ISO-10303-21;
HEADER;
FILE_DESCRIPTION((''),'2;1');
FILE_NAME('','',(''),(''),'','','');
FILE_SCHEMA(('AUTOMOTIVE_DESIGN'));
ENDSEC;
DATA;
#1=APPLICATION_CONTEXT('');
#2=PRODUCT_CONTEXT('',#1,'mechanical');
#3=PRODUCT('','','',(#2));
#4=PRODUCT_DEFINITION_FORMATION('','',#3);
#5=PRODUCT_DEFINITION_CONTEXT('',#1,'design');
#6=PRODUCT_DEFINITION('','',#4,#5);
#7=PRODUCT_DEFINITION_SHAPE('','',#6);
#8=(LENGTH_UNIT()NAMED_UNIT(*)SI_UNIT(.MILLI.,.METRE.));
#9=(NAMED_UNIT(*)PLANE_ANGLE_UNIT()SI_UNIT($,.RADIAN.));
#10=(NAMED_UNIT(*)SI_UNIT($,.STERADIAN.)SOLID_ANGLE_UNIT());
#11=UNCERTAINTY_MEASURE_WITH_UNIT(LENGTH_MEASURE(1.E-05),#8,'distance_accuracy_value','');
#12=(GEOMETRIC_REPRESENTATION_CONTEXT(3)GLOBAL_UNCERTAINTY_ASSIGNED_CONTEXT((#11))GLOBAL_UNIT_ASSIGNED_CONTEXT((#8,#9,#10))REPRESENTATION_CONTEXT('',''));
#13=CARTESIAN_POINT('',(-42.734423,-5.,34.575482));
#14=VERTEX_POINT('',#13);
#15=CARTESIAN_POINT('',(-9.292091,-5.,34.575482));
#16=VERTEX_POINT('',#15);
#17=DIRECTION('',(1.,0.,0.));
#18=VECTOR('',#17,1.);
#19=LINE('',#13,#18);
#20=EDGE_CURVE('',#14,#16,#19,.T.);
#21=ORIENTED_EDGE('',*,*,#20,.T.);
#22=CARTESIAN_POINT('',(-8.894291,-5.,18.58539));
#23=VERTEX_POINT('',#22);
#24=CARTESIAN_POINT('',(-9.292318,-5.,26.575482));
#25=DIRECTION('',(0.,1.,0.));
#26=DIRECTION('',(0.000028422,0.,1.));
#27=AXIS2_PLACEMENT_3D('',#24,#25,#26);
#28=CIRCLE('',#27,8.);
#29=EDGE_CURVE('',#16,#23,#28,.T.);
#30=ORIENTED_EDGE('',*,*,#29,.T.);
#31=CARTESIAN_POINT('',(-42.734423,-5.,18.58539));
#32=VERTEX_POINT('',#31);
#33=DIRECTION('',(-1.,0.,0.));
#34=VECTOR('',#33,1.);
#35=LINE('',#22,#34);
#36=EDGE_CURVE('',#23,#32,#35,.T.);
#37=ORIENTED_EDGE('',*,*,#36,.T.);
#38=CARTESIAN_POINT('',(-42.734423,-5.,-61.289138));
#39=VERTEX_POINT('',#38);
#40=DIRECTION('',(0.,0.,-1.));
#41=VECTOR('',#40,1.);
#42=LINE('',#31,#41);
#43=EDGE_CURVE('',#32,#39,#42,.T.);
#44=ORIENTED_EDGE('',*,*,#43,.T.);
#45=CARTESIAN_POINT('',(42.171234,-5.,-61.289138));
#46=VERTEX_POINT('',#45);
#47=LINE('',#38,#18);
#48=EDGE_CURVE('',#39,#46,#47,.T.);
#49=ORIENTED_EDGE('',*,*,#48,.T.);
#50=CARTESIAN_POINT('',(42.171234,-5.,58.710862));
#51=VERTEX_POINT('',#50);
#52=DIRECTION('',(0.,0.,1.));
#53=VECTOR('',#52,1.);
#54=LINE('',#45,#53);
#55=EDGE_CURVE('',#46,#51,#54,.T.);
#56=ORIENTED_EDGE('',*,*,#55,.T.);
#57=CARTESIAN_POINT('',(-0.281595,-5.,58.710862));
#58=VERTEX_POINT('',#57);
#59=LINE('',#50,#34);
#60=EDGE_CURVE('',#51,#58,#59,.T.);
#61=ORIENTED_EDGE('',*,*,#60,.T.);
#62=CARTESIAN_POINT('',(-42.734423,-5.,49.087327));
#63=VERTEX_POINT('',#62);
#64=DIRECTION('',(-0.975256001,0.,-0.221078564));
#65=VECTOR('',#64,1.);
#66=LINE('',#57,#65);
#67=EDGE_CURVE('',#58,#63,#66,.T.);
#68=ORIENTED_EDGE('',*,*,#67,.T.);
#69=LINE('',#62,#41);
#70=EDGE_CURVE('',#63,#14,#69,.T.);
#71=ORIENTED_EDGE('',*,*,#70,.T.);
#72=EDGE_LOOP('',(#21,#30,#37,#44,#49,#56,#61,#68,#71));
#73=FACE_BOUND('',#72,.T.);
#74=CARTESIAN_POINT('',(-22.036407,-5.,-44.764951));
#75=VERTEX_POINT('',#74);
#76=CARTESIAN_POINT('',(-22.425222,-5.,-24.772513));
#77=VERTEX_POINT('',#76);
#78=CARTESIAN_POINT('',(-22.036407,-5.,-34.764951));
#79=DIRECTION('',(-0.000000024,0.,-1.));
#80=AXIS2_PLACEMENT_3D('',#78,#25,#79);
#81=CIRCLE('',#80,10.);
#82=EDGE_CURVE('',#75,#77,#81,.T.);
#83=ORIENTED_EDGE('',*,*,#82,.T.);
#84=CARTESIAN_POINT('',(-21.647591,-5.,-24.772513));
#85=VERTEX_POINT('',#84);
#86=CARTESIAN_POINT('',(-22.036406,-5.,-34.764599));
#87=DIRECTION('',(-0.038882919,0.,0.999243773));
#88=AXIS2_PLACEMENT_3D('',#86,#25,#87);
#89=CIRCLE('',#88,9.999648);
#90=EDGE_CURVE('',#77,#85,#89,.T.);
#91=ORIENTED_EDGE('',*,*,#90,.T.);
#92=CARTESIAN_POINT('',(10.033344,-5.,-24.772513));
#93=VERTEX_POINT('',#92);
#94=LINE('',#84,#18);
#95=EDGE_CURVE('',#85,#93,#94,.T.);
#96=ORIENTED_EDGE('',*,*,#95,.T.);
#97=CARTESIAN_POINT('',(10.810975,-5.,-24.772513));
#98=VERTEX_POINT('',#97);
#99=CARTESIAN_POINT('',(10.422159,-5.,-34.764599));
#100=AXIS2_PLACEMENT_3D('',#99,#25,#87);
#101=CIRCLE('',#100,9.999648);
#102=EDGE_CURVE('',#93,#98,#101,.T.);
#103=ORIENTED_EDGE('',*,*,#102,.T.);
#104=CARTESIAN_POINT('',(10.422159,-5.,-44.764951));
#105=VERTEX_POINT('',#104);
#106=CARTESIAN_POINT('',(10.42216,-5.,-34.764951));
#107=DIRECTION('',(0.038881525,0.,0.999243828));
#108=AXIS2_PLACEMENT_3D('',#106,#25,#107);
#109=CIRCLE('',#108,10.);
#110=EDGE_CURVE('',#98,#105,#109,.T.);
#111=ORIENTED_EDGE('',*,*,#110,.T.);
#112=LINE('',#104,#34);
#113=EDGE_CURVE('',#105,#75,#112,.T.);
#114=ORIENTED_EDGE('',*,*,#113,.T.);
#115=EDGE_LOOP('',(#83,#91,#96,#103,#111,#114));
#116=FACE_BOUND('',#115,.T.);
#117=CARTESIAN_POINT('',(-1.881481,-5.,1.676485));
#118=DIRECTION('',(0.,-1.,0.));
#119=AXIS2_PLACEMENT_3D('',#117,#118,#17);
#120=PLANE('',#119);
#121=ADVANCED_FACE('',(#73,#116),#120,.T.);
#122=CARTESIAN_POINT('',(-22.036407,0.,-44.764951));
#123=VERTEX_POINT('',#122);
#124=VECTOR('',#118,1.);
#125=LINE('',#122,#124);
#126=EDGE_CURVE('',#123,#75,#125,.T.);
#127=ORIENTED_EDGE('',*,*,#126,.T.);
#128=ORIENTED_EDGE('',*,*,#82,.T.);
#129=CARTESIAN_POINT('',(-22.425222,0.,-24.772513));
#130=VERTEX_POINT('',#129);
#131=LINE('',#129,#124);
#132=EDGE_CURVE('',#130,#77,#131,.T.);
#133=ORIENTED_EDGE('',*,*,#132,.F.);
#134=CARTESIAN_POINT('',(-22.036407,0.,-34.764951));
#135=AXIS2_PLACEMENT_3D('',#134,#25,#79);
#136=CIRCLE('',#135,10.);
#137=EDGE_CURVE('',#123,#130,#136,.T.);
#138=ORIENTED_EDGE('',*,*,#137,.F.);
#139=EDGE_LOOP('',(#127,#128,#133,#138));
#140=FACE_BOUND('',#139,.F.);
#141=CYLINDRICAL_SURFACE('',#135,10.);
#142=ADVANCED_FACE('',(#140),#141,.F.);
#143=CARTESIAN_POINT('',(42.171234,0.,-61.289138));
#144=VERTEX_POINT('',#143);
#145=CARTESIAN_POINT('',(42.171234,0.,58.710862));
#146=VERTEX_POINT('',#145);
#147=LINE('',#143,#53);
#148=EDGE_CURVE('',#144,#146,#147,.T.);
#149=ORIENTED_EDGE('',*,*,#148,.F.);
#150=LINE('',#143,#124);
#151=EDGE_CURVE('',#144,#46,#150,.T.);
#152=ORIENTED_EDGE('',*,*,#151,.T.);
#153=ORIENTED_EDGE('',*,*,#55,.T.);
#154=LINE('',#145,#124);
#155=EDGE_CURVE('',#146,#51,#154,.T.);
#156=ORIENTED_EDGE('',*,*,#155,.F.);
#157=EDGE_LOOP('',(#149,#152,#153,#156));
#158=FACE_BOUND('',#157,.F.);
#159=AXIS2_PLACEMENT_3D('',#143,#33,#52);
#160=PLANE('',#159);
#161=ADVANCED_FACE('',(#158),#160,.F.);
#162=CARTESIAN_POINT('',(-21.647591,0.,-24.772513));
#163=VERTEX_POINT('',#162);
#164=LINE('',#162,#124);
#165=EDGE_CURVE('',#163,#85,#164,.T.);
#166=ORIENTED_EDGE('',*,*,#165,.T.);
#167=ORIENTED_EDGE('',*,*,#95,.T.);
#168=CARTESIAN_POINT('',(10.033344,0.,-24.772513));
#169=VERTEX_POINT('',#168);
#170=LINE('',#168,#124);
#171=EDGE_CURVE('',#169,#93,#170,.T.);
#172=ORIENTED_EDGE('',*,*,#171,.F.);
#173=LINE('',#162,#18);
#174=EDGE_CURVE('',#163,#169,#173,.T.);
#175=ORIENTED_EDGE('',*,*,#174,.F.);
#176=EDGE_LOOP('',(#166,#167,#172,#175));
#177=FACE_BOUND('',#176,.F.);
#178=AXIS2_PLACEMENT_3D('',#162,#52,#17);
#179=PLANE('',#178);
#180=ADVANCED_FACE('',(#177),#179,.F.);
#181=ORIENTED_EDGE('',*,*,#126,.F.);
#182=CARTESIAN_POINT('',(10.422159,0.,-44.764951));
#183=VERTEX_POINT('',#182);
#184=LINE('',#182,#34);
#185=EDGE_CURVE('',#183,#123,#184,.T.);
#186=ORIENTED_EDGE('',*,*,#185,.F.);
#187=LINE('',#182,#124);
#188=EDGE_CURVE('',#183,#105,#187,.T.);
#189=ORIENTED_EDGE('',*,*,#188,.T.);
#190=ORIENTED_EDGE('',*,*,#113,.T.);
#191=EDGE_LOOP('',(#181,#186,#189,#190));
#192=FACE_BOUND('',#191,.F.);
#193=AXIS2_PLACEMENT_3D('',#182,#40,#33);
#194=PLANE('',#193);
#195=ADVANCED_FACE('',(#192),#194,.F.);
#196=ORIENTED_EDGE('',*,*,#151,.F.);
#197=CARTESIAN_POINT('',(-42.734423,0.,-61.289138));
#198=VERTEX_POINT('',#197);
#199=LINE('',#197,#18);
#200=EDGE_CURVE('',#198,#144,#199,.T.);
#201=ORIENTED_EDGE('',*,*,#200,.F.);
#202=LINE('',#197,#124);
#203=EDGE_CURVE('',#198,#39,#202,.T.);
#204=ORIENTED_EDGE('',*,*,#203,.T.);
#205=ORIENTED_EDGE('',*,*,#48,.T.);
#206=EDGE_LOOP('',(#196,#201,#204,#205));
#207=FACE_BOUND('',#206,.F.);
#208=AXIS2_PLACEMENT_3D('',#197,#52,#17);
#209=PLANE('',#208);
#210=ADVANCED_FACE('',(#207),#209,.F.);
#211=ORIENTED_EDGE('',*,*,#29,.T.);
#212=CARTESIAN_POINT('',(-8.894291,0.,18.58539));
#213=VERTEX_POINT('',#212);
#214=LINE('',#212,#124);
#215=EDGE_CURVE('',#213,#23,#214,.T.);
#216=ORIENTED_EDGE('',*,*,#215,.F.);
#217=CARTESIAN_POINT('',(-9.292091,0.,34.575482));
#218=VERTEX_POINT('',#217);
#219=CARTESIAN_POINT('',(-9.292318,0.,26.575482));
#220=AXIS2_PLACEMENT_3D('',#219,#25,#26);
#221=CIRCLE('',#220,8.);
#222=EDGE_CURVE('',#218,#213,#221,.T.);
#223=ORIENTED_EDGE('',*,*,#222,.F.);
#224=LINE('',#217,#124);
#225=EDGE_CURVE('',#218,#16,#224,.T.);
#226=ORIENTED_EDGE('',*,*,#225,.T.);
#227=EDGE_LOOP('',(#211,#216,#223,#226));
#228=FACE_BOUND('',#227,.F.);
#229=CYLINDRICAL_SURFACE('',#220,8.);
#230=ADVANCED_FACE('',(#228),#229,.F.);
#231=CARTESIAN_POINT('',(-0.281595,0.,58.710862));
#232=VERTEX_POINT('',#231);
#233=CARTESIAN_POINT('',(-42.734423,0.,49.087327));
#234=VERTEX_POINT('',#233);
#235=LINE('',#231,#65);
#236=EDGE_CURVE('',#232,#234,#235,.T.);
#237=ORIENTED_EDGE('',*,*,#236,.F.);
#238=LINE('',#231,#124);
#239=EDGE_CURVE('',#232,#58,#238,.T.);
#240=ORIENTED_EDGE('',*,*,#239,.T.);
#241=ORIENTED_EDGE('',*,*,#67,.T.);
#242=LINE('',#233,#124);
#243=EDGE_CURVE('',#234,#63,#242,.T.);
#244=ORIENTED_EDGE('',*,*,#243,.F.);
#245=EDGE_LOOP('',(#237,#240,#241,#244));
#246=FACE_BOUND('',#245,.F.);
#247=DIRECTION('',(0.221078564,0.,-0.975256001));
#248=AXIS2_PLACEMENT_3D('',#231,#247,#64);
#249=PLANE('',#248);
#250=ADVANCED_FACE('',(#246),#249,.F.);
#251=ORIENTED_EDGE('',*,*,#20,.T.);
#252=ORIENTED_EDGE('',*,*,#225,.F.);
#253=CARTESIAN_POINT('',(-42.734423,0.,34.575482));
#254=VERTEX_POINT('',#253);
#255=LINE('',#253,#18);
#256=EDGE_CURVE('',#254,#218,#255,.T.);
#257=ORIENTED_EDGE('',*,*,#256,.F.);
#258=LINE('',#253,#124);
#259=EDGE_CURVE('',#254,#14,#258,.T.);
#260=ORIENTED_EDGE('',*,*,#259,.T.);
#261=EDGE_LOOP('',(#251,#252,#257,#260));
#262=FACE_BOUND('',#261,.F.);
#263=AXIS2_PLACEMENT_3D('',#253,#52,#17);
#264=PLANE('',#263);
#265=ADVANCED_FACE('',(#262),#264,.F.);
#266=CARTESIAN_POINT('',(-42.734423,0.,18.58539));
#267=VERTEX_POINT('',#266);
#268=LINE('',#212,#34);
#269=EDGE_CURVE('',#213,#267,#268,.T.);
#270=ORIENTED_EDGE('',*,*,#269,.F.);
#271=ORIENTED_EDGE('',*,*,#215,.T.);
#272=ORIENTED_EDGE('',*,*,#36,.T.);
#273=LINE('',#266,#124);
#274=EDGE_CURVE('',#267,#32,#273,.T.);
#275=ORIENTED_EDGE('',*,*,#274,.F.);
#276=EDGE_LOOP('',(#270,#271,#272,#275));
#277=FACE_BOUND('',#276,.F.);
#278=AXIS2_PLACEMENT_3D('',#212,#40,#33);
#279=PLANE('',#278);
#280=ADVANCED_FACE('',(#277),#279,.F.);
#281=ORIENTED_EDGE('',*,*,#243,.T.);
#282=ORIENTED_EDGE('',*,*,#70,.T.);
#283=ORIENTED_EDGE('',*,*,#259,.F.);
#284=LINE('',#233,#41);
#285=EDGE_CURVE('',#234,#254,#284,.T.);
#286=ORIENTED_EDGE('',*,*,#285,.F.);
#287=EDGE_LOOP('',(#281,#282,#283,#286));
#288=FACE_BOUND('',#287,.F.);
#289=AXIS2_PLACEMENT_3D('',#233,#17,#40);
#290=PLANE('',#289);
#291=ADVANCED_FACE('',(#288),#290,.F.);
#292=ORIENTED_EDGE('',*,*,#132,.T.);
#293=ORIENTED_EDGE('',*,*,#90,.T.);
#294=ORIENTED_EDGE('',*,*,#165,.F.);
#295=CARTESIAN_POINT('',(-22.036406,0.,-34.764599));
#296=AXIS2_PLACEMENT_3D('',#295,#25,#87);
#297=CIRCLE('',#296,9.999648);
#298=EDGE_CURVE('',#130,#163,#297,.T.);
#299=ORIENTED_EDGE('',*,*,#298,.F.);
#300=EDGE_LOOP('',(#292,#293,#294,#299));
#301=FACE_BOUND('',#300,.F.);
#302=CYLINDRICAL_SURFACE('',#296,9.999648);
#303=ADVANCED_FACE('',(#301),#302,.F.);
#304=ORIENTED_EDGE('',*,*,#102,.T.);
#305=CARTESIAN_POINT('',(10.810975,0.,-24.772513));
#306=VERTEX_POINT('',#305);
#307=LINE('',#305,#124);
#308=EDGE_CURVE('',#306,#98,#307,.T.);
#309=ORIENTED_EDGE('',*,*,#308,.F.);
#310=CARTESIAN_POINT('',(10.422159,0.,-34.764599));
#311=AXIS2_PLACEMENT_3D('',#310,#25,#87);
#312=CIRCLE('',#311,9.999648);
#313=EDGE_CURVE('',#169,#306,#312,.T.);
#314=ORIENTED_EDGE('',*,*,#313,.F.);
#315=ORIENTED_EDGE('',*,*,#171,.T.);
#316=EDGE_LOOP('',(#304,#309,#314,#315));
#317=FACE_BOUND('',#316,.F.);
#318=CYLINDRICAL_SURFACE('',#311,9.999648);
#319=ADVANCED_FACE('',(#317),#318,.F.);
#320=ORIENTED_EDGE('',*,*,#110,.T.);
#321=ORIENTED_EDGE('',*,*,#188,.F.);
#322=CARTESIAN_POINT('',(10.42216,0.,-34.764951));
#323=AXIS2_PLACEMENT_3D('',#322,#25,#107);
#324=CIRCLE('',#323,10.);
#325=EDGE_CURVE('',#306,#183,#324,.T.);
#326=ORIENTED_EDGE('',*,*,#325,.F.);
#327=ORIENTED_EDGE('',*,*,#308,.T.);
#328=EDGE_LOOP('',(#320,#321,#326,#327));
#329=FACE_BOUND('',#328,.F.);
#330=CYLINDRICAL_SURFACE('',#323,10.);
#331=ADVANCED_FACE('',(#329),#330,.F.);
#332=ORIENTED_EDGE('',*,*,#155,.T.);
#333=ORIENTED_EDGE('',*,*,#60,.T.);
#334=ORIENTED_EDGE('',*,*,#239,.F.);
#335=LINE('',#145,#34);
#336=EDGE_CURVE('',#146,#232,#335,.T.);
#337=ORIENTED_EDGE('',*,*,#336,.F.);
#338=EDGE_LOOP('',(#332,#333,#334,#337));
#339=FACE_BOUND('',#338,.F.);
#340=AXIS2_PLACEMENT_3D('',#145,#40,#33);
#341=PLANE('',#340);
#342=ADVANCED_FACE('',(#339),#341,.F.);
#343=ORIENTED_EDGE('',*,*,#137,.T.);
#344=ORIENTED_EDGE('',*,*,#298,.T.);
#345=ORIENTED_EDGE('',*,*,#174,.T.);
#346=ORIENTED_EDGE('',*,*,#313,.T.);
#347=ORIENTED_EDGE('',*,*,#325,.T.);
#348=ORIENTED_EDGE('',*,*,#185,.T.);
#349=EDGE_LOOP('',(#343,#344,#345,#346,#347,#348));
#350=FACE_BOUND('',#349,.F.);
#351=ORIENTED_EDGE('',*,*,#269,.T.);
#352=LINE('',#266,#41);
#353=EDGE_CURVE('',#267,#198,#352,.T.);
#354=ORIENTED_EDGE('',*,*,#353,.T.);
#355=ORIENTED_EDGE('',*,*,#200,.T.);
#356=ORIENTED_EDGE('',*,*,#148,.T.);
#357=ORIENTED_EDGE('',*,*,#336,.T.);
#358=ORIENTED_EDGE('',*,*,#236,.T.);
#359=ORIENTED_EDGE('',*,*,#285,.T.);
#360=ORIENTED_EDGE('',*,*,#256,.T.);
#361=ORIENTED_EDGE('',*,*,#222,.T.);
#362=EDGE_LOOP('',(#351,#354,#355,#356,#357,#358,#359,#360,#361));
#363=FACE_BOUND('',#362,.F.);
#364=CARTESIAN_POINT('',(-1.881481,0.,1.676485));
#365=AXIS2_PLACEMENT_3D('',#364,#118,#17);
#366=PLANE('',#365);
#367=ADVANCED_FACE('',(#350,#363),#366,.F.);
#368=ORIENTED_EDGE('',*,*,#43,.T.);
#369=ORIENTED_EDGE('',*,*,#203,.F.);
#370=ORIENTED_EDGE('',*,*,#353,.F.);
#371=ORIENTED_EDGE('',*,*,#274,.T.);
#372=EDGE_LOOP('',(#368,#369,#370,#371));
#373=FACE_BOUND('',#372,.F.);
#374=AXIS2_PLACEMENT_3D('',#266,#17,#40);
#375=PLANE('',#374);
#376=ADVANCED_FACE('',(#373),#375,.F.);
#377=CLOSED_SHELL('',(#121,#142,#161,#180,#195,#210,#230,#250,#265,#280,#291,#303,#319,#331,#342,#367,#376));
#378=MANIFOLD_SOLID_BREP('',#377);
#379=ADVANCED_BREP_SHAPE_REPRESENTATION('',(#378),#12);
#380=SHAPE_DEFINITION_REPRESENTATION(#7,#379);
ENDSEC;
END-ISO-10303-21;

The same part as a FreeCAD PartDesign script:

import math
import FreeCAD as App
import Part
import Sketcher

doc = App.newDocument("Part")
body = doc.addObject("PartDesign::Body", "Body")

# Sketch on XZ plane
sketch1 = doc.addObject("Sketcher::SketchObject", "Sketch")
body.addObject(sketch1)
sketch1.AttachmentSupport = (doc.XZ_Plane, [""])
sketch1.MapMode = "FlatFace"
sketch1.addGeometry([
    Part.LineSegment(App.Vector(42.171234, 58.710862, 0), App.Vector(-0.281595, 58.710862, 0)),  # 0
    Part.LineSegment(App.Vector(-0.281595, 58.710862, 0), App.Vector(-42.734423, 49.087327, 0)),  # 1
    Part.LineSegment(App.Vector(-42.734423, 49.087327, 0), App.Vector(-42.734423, 34.575482, 0)),  # 2
    Part.LineSegment(App.Vector(-42.734423, 34.575482, 0), App.Vector(-9.292091, 34.575482, 0)),  # 3
    Part.ArcOfCircle(Part.Circle(App.Vector(-9.292318, 26.575482, 0), App.Vector(0, 0, 1), 8), math.radians(-87.148161), math.radians(89.998372)),  # 4
    Part.LineSegment(App.Vector(-8.894291, 18.58539, 0), App.Vector(-42.734423, 18.58539, 0)),  # 5
    Part.LineSegment(App.Vector(-42.734423, 18.58539, 0), App.Vector(-42.734423, -61.289138, 0)),  # 6
    Part.LineSegment(App.Vector(-42.734423, -61.289138, 0), App.Vector(42.171234, -61.289138, 0)),  # 7
    Part.LineSegment(App.Vector(42.171234, -61.289138, 0), App.Vector(42.171234, 58.710862, 0)),  # 8
    Part.ArcOfCircle(Part.Circle(App.Vector(-22.036407, -34.764951, 0), App.Vector(0, 0, 1), 10), math.radians(92.228309), math.radians(269.999999)),  # 9
    Part.ArcOfCircle(Part.Circle(App.Vector(-22.036406, -34.764599, 0), App.Vector(0, 0, 1), 9.999648), math.radians(87.771611), math.radians(92.228389)),  # 10
    Part.LineSegment(App.Vector(-21.647591, -24.772513, 0), App.Vector(10.033344, -24.772513, 0)),  # 11
    Part.ArcOfCircle(Part.Circle(App.Vector(10.422159, -34.764599, 0), App.Vector(0, 0, 1), 9.999648), math.radians(87.771611), math.radians(92.228389)),  # 12
    Part.ArcOfCircle(Part.Circle(App.Vector(10.42216, -34.764951, 0), App.Vector(0, 0, 1), 10), math.radians(-90.000004), math.radians(87.771691)),  # 13
    Part.LineSegment(App.Vector(10.422159, -44.764951, 0), App.Vector(-22.036407, -44.764951, 0)),  # 14
], False)
sketch1.addConstraint([
    Sketcher.Constraint("Coincident", 0, 2, 1, 1),
    Sketcher.Constraint("Coincident", 1, 2, 2, 1),
    Sketcher.Constraint("Coincident", 2, 2, 3, 1),
    Sketcher.Constraint("Coincident", 3, 2, 4, 2),
    Sketcher.Constraint("Coincident", 4, 1, 5, 1),
    Sketcher.Constraint("Coincident", 5, 2, 6, 1),
    Sketcher.Constraint("Coincident", 6, 2, 7, 1),
    Sketcher.Constraint("Coincident", 7, 2, 8, 1),
    Sketcher.Constraint("Coincident", 8, 2, 0, 1),
    Sketcher.Constraint("Coincident", 9, 1, 10, 2),
    Sketcher.Constraint("Coincident", 10, 1, 11, 1),
    Sketcher.Constraint("Coincident", 11, 2, 12, 2),
    Sketcher.Constraint("Coincident", 12, 1, 13, 2),
    Sketcher.Constraint("Coincident", 13, 1, 14, 1),
    Sketcher.Constraint("Coincident", 14, 2, 9, 2),
    Sketcher.Constraint("Horizontal", 0),
    Sketcher.Constraint("Vertical", 2),
    Sketcher.Constraint("Horizontal", 3),
    Sketcher.Constraint("Horizontal", 5),
    Sketcher.Constraint("Vertical", 6),
    Sketcher.Constraint("Horizontal", 7),
    Sketcher.Constraint("Vertical", 8),
    Sketcher.Constraint("Horizontal", 11),
    Sketcher.Constraint("Horizontal", 14),
    Sketcher.Constraint("Radius", 4, 8.0),
    Sketcher.Constraint("Radius", 9, 10.0),
    Sketcher.Constraint("Radius", 13, 10.0),
    Sketcher.Constraint("DistanceY", 8, 1, 8, 2, 120.0),
    Sketcher.Constraint("Radius", 10, 9.999648),
    Sketcher.Constraint("Radius", 12, 9.999648),
    Sketcher.Constraint("DistanceX", 0, 2, 0, 1, 42.452829),
    Sketcher.Constraint("DistanceX", 5, 2, 5, 1, 33.840132),
    Sketcher.Constraint("DistanceY", 6, 2, 6, 1, 79.874528),
    Sketcher.Constraint("DistanceY", 10, 3, -1, 1, 34.764599),
    Sketcher.Constraint("DistanceY", 12, 3, -1, 1, 34.764599),
    Sketcher.Constraint("DistanceX", 3, 2, 4, 1, 0.3978),
    Sketcher.Constraint("DistanceX", 6, 2, 9, 1, 20.309201),
    Sketcher.Constraint("DistanceX", 3, 1, 3, 2, 33.442332),
    Sketcher.Constraint("DistanceX", 7, 1, 7, 2, 84.905657),
    Sketcher.Constraint("DistanceX", 11, 1, 11, 2, 31.680935),
    Sketcher.Constraint("DistanceX", 14, 2, 14, 1, 32.458566),
    Sketcher.Constraint("DistanceY", 2, 2, 2, 1, 14.511845),
    Sketcher.Constraint("DistanceX", 4, 3, -1, 1, 9.292318),
    Sketcher.Constraint("DistanceY", 9, 3, -1, 1, 34.764951),
    Sketcher.Constraint("DistanceX", -1, 1, 12, 3, 10.422159),
    Sketcher.Constraint("DistanceX", 3, 2, -1, 1, 9.292091),
    Sketcher.Constraint("DistanceY", -1, 1, 4, 1, 18.58539),
    Sketcher.Constraint("DistanceX", 10, 1, -1, 1, 21.647591),
    Sketcher.Constraint("DistanceX", -1, 1, 13, 1, 10.422159),
    Sketcher.Constraint("DistanceX", 11, 2, 12, 1, 0.777631),
])
pad1 = doc.addObject("PartDesign::Pad", "Pad")
body.addObject(pad1)
pad1.Profile = sketch1
pad1.Length = 5

doc.recompute()
